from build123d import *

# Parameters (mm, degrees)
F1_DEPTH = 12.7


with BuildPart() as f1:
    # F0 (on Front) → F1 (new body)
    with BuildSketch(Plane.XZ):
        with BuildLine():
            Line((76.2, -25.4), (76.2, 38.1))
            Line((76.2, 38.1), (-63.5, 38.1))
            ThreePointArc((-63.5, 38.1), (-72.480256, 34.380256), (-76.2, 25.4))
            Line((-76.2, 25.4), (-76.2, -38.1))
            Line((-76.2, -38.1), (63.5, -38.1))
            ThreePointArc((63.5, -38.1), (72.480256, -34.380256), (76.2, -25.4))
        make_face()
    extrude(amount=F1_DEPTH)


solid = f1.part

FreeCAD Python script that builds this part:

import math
import FreeCAD as App
import Part
import Sketcher
from FreeCAD import Vector
Q = App.Units.Quantity

doc = App.newDocument("Part")
params = doc.addObject("Spreadsheet::Sheet", "Params")
for row, (alias, value) in enumerate([
    ("sketch1_radius", "0.5 in"),
    ("sketch1_width", "5.5 in"),
    ("sketch1_height", "2.5 in"),
    ("pad1_length", "0.5 in"),
], start=1):
    params.set(f"A{row}", alias)
    params.set(f"B{row}", "=" + value)
    params.setAlias(f"B{row}", alias)

body = doc.addObject("PartDesign::Body", "Body")

sketch1 = doc.addObject("Sketcher::SketchObject", "Sketch")
body.addObject(sketch1)
sketch1.AttachmentSupport = (doc.XZ_Plane, [""])
sketch1.MapMode = "FlatFace"
sketch1.addGeometry([
    Part.LineSegment(Vector(76, -25, 0), Vector(76, 38, 0)),
    Part.LineSegment(Vector(76, 38, 0), Vector(-64, 38, 0)),
    Part.ArcOfCircle(Part.Circle(Vector(-63, 25, 0), Vector(0, 0, 1), 13), math.radians(90), math.radians(180)),
    Part.LineSegment(Vector(-76, 25, 0), Vector(-76, -38, 0)),
    Part.LineSegment(Vector(-76, -38, 0), Vector(64, -38, 0)),
    Part.ArcOfCircle(Part.Circle(Vector(63, -25, 0), Vector(0, 0, 1), 13), math.radians(-90), math.radians(0)),
], False)
sketch1.addConstraint([
    Sketcher.Constraint("Coincident", 0, 2, 1, 1),
    Sketcher.Constraint("Tangent", 1, 2, 2, 1),
    Sketcher.Constraint("Tangent", 2, 2, 3, 1),
    Sketcher.Constraint("Coincident", 3, 2, 4, 1),
    Sketcher.Constraint("Tangent", 4, 2, 5, 1),
    Sketcher.Constraint("Tangent", 5, 2, 0, 1),
    Sketcher.Constraint("Vertical", 0),
    Sketcher.Constraint("Horizontal", 1),
    Sketcher.Constraint("Vertical", 3),
    Sketcher.Constraint("Horizontal", 4),
    Sketcher.Constraint("Equal", 2, 5),
    Sketcher.Constraint("Symmetric", 2, 3, 5, 3, -1, 1),
    Sketcher.Constraint("Radius", 2, Q("0.5 in")),
    Sketcher.Constraint("DistanceX", 1, 2, 1, 1, Q("5.5 in")),
    Sketcher.Constraint("DistanceY", 0, 1, 0, 2, Q("2.5 in")),
])
sketch1.setExpression("Constraints[12]", "Params.sketch1_radius")
sketch1.setExpression("Constraints[13]", "Params.sketch1_width")
sketch1.setExpression("Constraints[14]", "Params.sketch1_height")
pad1 = doc.addObject("PartDesign::Pad", "Pad")
body.addObject(pad1)
pad1.Profile = sketch1
pad1.setExpression("Length", "Params.pad1_length")

doc.recompute()
